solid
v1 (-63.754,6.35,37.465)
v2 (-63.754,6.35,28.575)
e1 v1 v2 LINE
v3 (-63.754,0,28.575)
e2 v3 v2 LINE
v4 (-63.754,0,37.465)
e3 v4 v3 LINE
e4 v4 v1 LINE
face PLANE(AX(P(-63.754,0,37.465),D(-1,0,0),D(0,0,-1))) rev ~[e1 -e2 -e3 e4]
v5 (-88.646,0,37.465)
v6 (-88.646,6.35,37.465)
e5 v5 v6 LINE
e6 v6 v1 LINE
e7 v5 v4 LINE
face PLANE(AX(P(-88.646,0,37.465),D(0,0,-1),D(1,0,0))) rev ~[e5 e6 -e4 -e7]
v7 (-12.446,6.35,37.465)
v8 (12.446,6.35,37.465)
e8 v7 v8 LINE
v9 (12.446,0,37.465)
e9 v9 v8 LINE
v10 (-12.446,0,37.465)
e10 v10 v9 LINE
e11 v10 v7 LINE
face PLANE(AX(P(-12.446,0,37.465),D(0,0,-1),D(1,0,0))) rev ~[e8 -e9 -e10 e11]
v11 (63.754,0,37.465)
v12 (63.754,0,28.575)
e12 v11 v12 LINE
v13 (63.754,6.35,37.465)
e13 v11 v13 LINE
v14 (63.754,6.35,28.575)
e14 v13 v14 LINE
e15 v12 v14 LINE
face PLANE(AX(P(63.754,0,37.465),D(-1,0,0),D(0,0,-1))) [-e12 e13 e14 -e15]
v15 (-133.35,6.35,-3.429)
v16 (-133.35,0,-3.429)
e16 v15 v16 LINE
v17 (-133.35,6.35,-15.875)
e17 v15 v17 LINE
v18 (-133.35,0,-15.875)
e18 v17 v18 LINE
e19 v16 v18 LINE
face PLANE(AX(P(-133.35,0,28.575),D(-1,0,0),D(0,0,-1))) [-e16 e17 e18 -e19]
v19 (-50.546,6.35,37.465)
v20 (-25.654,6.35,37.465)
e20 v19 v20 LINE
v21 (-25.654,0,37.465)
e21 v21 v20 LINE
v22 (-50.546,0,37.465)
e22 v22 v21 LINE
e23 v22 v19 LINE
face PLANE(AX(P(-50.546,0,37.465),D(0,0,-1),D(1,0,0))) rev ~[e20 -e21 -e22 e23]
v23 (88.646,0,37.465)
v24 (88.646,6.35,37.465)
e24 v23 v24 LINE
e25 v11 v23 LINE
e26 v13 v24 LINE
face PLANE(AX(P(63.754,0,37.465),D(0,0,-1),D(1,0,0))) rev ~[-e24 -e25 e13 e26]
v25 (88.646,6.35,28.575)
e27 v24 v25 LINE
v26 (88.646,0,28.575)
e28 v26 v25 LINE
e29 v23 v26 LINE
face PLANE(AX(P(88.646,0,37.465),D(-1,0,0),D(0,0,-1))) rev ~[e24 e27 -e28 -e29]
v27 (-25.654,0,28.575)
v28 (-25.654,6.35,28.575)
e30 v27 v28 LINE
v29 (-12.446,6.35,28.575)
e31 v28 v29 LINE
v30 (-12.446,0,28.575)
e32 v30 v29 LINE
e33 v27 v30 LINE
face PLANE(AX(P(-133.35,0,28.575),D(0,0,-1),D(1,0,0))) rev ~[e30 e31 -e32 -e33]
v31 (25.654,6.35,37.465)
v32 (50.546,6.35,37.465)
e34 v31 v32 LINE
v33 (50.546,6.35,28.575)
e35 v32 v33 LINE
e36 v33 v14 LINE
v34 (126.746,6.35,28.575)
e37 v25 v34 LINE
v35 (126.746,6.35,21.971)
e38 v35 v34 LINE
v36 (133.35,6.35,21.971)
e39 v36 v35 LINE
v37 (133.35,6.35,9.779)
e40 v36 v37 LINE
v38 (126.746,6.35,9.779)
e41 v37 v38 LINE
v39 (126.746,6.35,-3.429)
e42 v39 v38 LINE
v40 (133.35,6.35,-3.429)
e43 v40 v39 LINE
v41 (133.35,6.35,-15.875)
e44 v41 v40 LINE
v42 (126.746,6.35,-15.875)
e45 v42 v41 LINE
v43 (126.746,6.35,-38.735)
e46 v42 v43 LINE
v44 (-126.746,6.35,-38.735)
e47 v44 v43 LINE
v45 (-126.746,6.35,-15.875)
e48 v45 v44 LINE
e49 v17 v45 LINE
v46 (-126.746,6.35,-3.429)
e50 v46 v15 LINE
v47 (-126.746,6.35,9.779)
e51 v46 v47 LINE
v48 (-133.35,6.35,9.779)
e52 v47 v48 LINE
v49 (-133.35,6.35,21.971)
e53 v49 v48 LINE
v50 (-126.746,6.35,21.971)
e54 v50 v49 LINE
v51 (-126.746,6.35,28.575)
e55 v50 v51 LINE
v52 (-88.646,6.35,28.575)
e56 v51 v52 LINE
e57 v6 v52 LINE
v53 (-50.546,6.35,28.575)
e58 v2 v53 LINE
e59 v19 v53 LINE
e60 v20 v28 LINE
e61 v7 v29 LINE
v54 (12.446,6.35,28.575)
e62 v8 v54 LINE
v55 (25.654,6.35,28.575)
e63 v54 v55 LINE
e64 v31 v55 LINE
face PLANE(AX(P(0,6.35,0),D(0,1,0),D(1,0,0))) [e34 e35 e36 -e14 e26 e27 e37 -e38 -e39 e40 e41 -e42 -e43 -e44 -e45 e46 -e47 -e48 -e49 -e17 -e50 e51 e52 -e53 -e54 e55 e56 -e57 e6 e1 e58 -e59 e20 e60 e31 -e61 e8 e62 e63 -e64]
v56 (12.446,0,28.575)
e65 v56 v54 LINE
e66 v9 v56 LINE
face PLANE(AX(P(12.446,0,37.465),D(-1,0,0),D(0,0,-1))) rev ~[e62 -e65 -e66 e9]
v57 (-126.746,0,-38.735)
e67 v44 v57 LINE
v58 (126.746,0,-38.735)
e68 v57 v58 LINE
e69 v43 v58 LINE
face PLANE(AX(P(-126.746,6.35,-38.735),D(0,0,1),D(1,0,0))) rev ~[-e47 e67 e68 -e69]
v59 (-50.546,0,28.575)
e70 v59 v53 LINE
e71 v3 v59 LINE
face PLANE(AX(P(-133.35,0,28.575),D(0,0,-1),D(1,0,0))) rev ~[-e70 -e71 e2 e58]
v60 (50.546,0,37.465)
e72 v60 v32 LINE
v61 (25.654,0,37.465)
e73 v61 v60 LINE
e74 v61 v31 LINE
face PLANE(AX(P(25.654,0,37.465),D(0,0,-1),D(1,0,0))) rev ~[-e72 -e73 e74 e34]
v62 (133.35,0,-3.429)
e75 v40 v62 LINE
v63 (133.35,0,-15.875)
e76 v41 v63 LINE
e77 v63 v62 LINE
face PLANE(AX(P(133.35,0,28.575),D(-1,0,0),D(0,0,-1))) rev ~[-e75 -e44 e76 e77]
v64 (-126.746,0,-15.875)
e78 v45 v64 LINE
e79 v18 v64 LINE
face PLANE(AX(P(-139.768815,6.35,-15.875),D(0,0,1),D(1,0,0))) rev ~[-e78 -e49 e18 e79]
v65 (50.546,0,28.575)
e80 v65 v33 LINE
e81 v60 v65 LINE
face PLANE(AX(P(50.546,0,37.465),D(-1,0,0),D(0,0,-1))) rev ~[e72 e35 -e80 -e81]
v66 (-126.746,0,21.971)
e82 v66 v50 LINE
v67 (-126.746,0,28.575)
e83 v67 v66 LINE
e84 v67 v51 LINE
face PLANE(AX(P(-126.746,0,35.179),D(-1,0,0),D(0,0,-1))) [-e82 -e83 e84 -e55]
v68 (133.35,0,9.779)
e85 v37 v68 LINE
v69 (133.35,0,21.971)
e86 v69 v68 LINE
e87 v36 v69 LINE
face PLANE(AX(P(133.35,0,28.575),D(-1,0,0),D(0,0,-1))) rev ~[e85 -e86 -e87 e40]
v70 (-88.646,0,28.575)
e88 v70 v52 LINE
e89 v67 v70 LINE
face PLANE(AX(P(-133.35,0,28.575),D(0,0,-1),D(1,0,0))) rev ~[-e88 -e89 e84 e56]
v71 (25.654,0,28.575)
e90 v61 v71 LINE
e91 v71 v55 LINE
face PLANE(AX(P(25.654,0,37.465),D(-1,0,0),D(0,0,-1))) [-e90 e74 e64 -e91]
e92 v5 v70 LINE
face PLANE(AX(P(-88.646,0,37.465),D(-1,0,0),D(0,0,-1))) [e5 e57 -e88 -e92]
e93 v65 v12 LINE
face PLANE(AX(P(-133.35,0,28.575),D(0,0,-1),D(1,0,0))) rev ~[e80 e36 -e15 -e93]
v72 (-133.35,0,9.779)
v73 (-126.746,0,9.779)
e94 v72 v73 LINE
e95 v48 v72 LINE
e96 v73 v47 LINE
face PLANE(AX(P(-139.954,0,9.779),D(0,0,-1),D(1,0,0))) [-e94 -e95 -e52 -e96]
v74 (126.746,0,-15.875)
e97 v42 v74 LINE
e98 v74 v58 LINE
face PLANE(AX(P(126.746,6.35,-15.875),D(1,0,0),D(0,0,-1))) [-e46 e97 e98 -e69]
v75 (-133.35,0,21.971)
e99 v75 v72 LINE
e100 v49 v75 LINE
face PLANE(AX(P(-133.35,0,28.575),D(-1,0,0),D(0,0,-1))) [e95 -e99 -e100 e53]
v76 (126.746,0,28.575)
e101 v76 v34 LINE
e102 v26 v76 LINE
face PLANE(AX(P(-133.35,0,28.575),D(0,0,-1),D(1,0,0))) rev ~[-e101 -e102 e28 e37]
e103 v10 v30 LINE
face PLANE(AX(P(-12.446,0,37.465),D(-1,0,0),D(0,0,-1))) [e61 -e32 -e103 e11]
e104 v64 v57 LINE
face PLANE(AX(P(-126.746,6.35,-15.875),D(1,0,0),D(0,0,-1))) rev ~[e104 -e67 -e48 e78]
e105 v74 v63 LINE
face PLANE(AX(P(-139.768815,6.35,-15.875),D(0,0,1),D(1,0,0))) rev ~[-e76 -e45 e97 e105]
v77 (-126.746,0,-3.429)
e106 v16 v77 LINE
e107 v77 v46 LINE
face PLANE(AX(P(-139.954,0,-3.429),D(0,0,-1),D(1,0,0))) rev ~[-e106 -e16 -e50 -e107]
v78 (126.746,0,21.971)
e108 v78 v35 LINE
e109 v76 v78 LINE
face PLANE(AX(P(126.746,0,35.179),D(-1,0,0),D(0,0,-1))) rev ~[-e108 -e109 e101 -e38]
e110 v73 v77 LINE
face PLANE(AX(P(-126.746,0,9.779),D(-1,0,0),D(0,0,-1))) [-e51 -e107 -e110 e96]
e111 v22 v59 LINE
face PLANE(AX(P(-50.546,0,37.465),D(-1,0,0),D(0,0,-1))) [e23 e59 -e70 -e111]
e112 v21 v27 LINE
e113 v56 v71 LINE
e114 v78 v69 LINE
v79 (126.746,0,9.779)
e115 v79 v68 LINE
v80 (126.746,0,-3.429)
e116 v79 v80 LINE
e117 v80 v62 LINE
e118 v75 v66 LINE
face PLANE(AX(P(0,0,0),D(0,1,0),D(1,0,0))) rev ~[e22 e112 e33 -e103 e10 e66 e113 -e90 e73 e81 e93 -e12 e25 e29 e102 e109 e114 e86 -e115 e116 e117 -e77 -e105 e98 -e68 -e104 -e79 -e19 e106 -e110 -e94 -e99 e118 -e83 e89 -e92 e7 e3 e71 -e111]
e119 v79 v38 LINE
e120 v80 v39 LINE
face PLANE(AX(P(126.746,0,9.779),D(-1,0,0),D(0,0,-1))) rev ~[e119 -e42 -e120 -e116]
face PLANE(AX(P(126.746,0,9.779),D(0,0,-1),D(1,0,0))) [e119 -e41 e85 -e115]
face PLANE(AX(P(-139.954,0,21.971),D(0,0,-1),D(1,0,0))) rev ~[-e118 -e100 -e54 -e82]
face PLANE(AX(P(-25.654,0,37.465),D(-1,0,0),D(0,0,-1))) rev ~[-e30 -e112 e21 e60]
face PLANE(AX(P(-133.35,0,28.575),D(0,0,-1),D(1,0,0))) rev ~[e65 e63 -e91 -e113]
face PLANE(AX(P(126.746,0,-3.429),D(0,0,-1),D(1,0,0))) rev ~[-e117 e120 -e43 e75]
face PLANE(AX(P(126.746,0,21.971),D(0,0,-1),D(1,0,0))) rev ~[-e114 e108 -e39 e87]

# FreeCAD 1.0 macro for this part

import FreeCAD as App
import Part
import Sketcher

V = App.Vector
Q = App.Units.Quantity


def add_polygon(sketch, points):
    """Adds a closed chain of lines whose ends are joined by coincident constraints."""
    first, n = sketch.GeometryCount, len(points)
    for a, b in zip(points, points[1:] + points[:1]):
        sketch.addGeometry(Part.LineSegment(App.Vector(*a, 0), App.Vector(*b, 0)), False)
    for i in range(n):
        sketch.addConstraint(Sketcher.Constraint("Coincident", first + i, 2, first + (i + 1) % n, 1))

doc = App.newDocument("Part")
body = doc.addObject("PartDesign::Body", "Body")

sketch1 = body.newObject("Sketcher::SketchObject", "Sketch")
sketch1.AttachmentSupport = (doc.getObject("XZ_Plane"), [""])
sketch1.MapMode = "FlatFace"
add_polygon(sketch1, [(-133, -29), (-133, 29), (133, 29), (133, -29)])
sketch1.addConstraint(Sketcher.Constraint("Vertical", 0))
sketch1.addConstraint(Sketcher.Constraint("Horizontal", 1))
sketch1.addConstraint(Sketcher.Constraint("Vertical", 2))
sketch1.addConstraint(Sketcher.Constraint("Horizontal", 3))
sketch1.addConstraint(Sketcher.Constraint("Symmetric", 0, 2, 2, 2, -1, 1))
sketch1.addConstraint(Sketcher.Constraint("DistanceX", 1, 1, 1, 2, Q("10.5 in")))
sketch1.addConstraint(Sketcher.Constraint("DistanceY", 0, 1, 0, 2, Q("2.25 in")))
pad1 = body.newObject("PartDesign::Pad", "Pad")
pad1.Profile = sketch1
pad1.Length = Q("0.25 in")
pad1.Reversed = True

sketch2 = body.newObject("Sketcher::SketchObject", "Sketch001")
sketch2.AttachmentSupport = (doc.getObject("XZ_Plane"), [""])
sketch2.MapMode = "FlatFace"
add_polygon(sketch2, [(-89, 29), (-89, 37), (-64, 37), (-64, 29)])
add_polygon(sketch2, [(-51, 29), (-51, 37), (-26, 37), (-26, 29)])
add_polygon(sketch2, [(-12, 29), (-12, 37), (12, 37), (12, 29)])
add_polygon(sketch2, [(26, 29), (26, 37), (51, 37), (51, 29)])
add_polygon(sketch2, [(64, 29), (64, 37), (89, 37), (89, 29)])
sketch2.addConstraint(Sketcher.Constraint("Vertical", 0))
sketch2.addConstraint(Sketcher.Constraint("Horizontal", 1))
sketch2.addConstraint(Sketcher.Constraint("Vertical", 2))
sketch2.addConstraint(Sketcher.Constraint("Horizontal", 3))
sketch2.addConstraint(Sketcher.Constraint("Vertical", 4))
sketch2.addConstraint(Sketcher.Constraint("Horizontal", 5))
sketch2.addConstraint(Sketcher.Constraint("Vertical", 6))
sketch2.addConstraint(Sketcher.Constraint("Horizontal", 7))
sketch2.addConstraint(Sketcher.Constraint("Vertical", 8))
sketch2.addConstraint(Sketcher.Constraint("Horizontal", 9))
sketch2.addConstraint(Sketcher.Constraint("Vertical", 10))
sketch2.addConstraint(Sketcher.Constraint("Horizontal", 11))
sketch2.addConstraint(Sketcher.Constraint("Vertical", 12))
sketch2.addConstraint(Sketcher.Constraint("Horizontal", 13))
sketch2.addConstraint(Sketcher.Constraint("Vertical", 14))
sketch2.addConstraint(Sketcher.Constraint("Horizontal", 15))
sketch2.addConstraint(Sketcher.Constraint("Vertical", 16))
sketch2.addConstraint(Sketcher.Constraint("Horizontal", 17))
sketch2.addConstraint(Sketcher.Constraint("Vertical", 18))
sketch2.addConstraint(Sketcher.Constraint("Horizontal", 19))
sketch2.addConstraint(Sketcher.Constraint("Symmetric", 5, 2, 12, 2, -2))
sketch2.addConstraint(Sketcher.Constraint("Symmetric", 7, 2, 14, 2, -2))
sketch2.addConstraint(Sketcher.Constraint("Symmetric", 1, 2, 16, 2, -2))
sketch2.addConstraint(Sketcher.Constraint("Symmetric", 3, 2, 18, 2, -2))
sketch2.addConstraint(Sketcher.Constraint("Horizontal", 1, 2, 4, 2))
sketch2.addConstraint(Sketcher.Constraint("Horizontal", 3, 2, 6, 2))
sketch2.addConstraint(Sketcher.Constraint("Horizontal", 5, 2, 8, 2))
sketch2.addConstraint(Sketcher.Constraint("Horizontal", 7, 2, 10, 2))
sketch2.addConstraint(Sketcher.Constraint("Equal", 3, 5))
sketch2.addConstraint(Sketcher.Constraint("Equal", 7, 9))
sketch2.addConstraint(Sketcher.Constraint("DistanceX", 1, 1, 1, 2, Q("0.98 in")))
sketch2.addConstraint(Sketcher.Constraint("DistanceY", 0, 1, 0, 2, Q("0.35 in")))
sketch2.addConstraint(Sketcher.Constraint("DistanceX", 0, 2, 4, 2, Q("1.5 in")))
sketch2.addConstraint(Sketcher.Constraint("DistanceX", 4, 2, 8, 2, Q("1.5 in")))
sketch2.addConstraint(Sketcher.Constraint("DistanceX", 8, 2, 12, 2, Q("1.5 in")))
sketch2.addConstraint(Sketcher.Constraint("DistanceY", -1, 1, 0, 2, Q("1.475 in")))
pad2 = body.newObject("PartDesign::Pad", "Pad001")
pad2.Profile = sketch2
pad2.Length = Q("0.25 in")
pad2.Reversed = True

sketch3 = body.newObject("Sketcher::SketchObject", "Sketch002")
sketch3.AttachmentSupport = (doc.getObject("XZ_Plane"), [""])
sketch3.MapMode = "FlatFace"
add_polygon(sketch3, [(-140, -29), (-140, -16), (-127, -16), (-127, -29)])
add_polygon(sketch3, [(127, -29), (127, -16), (140, -16), (140, -29)])
add_polygon(sketch3, [(-140, -3), (-140, 10), (-127, 10), (-127, -3)])
add_polygon(sketch3, [(-140, 22), (-140, 35), (-127, 35), (-127, 22)])
add_polygon(sketch3, [(127, -3), (127, 10), (140, 10), (140, -3)])
add_polygon(sketch3, [(127, 22), (127, 35), (140, 35), (140, 22)])
sketch3.addConstraint(Sketcher.Constraint("Vertical", 0))
sketch3.addConstraint(Sketcher.Constraint("Horizontal", 1))
sketch3.addConstraint(Sketcher.Constraint("Vertical", 2))
sketch3.addConstraint(Sketcher.Constraint("Horizontal", 3))
sketch3.addConstraint(Sketcher.Constraint("Vertical", 4))
sketch3.addConstraint(Sketcher.Constraint("Horizontal", 5))
sketch3.addConstraint(Sketcher.Constraint("Vertical", 6))
sketch3.addConstraint(Sketcher.Constraint("Horizontal", 7))
sketch3.addConstraint(Sketcher.Constraint("Vertical", 8))
sketch3.addConstraint(Sketcher.Constraint("Horizontal", 9))
sketch3.addConstraint(Sketcher.Constraint("Vertical", 10))
sketch3.addConstraint(Sketcher.Constraint("Horizontal", 11))
sketch3.addConstraint(Sketcher.Constraint("Vertical", 12))
sketch3.addConstraint(Sketcher.Constraint("Horizontal", 13))
sketch3.addConstraint(Sketcher.Constraint("Vertical", 14))
sketch3.addConstraint(Sketcher.Constraint("Horizontal", 15))
sketch3.addConstraint(Sketcher.Constraint("Vertical", 16))
sketch3.addConstraint(Sketcher.Constraint("Horizontal", 17))
sketch3.addConstraint(Sketcher.Constraint("Vertical", 18))
sketch3.addConstraint(Sketcher.Constraint("Horizontal", 19))
sketch3.addConstraint(Sketcher.Constraint("Vertical", 20))
sketch3.addConstraint(Sketcher.Constraint("Horizontal", 21))
sketch3.addConstraint(Sketcher.Constraint("Vertical", 22))
sketch3.addConstraint(Sketcher.Constraint("Horizontal", 23))
sketch3.addConstraint(Sketcher.Constraint("Symmetric", 1, 2, 4, 2, -2))
sketch3.addConstraint(Sketcher.Constraint("Symmetric", 3, 2, 6, 2, -2))
sketch3.addConstraint(Sketcher.Constraint("Symmetric", 9, 2, 16, 2, -2))
sketch3.addConstraint(Sketcher.Constraint("Symmetric", 11, 2, 18, 2, -2))
sketch3.addConstraint(Sketcher.Constraint("Symmetric", 13, 2, 20, 2, -2))
sketch3.addConstraint(Sketcher.Constraint("Symmetric", 15, 2, 22, 2, -2))
sketch3.addConstraint(Sketcher.Constraint("Vertical", 3, 2, 8, 2))
sketch3.addConstraint(Sketcher.Constraint("Vertical", 2, 2, 9, 2))
sketch3.addConstraint(Sketcher.Constraint("Vertical", 11, 2, 12, 2))
sketch3.addConstraint(Sketcher.Constraint("Vertical", 10, 2, 13, 2))
sketch3.addConstraint(Sketcher.Constraint("Equal", 23, 0))
sketch3.addConstraint(Sketcher.Constraint("Equal", 6, 8))
sketch3.addConstraint(Sketcher.Constraint("Equal", 10, 12))
sketch3.addConstraint(Sketcher.Constraint("DistanceY", 0, 2, 8, 2, Q("1 in")))
sketch3.addConstraint(Sketcher.Constraint("DistanceY", 8, 2, 12, 2, Q("1 in")))
sketch3.addConstraint(Sketcher.Constraint("DistanceX", 1, 1, 1, 2, Q("0.52 in")))
sketch3.addConstraint(Sketcher.Constraint("DistanceX", 0, 2, 4, 2, Q("10.5 in")))
sketch3.addConstraint(Sketcher.Constraint("DistanceY", 0, 2, -1, 1, Q("0.615 in")))
pocket1 = body.newObject("PartDesign::Pocket", "Pocket")
pocket1.Profile = sketch3
pocket1.Type = "ThroughAll"

sketch4 = body.newObject("Sketcher::SketchObject", "Sketch003")
sketch4.AttachmentSupport = (doc.getObject("XZ_Plane"), [""])
sketch4.MapMode = "FlatFace"
sketch4.AttachmentOffset = App.Placement(V(0, 0, -0.25 * 25.4), App.Rotation())
add_polygon(sketch4, [(-140, -29), (-140, -16), (156, -16), (156, -29)])
sketch4.addConstraint(Sketcher.Constraint("Vertical", 0))
sketch4.addConstraint(Sketcher.Constraint("Horizontal", 1))
sketch4.addConstraint(Sketcher.Constraint("Vertical", 2))
sketch4.addConstraint(Sketcher.Constraint("Horizontal", 3))
sketch4.addConstraint(Sketcher.Constraint("DistanceY", 0, 1, 0, 2, Q("0.5 in")))
sketch4.addConstraint(Sketcher.Constraint("DistanceY", 0, 2, -1, 1, Q("0.625 in")))
sketch4.addConstraint(Sketcher.Constraint("DistanceX", 1, 1, 1, 2, Q("295.464136 mm")))
sketch4.addConstraint(Sketcher.Constraint("DistanceX", -1, 1, 1, 2, Q("155.695321 mm")))
pocket2 = body.newObject("PartDesign::Pocket", "Pocket001")
pocket2.Profile = sketch4
pocket2.Type = "ThroughAll"
pocket2.Reversed = True

sketch5 = body.newObject("Sketcher::SketchObject", "Sketch004")
sketch5.AttachmentSupport = (doc.getObject("XZ_Plane"), [""])
sketch5.MapMode = "FlatFace"
sketch5.AttachmentOffset = App.Placement(V(0, 0, -0.25 * 25.4), App.Rotation())
add_polygon(sketch5, [(-133, -16), (-133, -3), (133, -3), (133, -16)])
sketch5.addConstraint(Sketcher.Constraint("Vertical", 0))
sketch5.addConstraint(Sketcher.Constraint("Horizontal", 1))
sketch5.addConstraint(Sketcher.Constraint("Vertical", 2))
sketch5.addConstraint(Sketcher.Constraint("Horizontal", 3))
sketch5.addConstraint(Sketcher.Constraint("DistanceX", 1, 1, 1, 2, Q("10.5 in")))
sketch5.addConstraint(Sketcher.Constraint("DistanceY", 0, 1, 0, 2, Q("0.49 in")))
sketch5.addConstraint(Sketcher.Constraint("DistanceX", 0, 2, -1, 1, Q("5.25 in")))
sketch5.addConstraint(Sketcher.Constraint("DistanceY", 0, 2, -1, 1, Q("0.135 in")))
pad3 = body.newObject("PartDesign::Pad", "Pad002")
pad3.Profile = sketch5
pad3.Length = Q("0.25 in")

sketch6 = body.newObject("Sketcher::SketchObject", "Sketch005")
sketch6.AttachmentSupport = (doc.getObject("XZ_Plane"), [""])
sketch6.MapMode = "FlatFace"
sketch6.AttachmentOffset = App.Placement(V(0, 0, -0.25 * 25.4), App.Rotation())
add_polygon(sketch6, [(-127, -39), (-127, -16), (127, -16), (127, -39)])
sketch6.addConstraint(Sketcher.Constraint("Vertical", 0))
sketch6.addConstraint(Sketcher.Constraint("Horizontal", 1))
sketch6.addConstraint(Sketcher.Constraint("Vertical", 2))
sketch6.addConstraint(Sketcher.Constraint("Horizontal", 3))
sketch6.addConstraint(Sketcher.Constraint("DistanceY", 0, 1, 0, 2, Q("0.9 in")))
sketch6.addConstraint(Sketcher.Constraint("DistanceX", 1, 1, 1, 2, Q("9.98 in")))
sketch6.addConstraint(Sketcher.Constraint("DistanceX", 0, 2, -1, 1, Q("4.99 in")))
sketch6.addConstraint(Sketcher.Constraint("DistanceY", 0, 2, -1, 1, Q("0.625 in")))
pad4 = body.newObject("PartDesign::Pad", "Pad003")
pad4.Profile = sketch6
pad4.Length = Q("0.25 in")

doc.recompute()
